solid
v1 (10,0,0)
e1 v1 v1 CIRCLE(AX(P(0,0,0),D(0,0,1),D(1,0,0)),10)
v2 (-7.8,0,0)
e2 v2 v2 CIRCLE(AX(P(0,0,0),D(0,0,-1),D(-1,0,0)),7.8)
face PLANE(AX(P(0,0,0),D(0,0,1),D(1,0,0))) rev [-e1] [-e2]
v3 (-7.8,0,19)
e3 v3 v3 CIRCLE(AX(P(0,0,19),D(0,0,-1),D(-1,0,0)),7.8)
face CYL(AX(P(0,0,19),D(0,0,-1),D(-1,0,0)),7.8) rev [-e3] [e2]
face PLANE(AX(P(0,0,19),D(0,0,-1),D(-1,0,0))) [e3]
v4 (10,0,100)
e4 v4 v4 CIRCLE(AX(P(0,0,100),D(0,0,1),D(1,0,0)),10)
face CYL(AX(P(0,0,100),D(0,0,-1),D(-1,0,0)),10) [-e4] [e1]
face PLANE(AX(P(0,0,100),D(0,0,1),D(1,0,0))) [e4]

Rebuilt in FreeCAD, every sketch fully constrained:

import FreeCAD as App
import Part
import Sketcher
Q = App.Units.Quantity

doc = App.newDocument("Part")
body = doc.addObject("PartDesign::Body", "Body")

sketch1 = doc.addObject("Sketcher::SketchObject", "Sketch")
body.addObject(sketch1)
sketch1.AttachmentSupport = (doc.XY_Plane, [""])
sketch1.MapMode = "FlatFace"
sketch1.addGeometry(Part.Circle(App.Vector(0, 0, 0), App.Vector(0, 0, 1), 10), False)
sketch1.addConstraint([
    Sketcher.Constraint("Coincident", 0, 3, -1, 1),
    Sketcher.Constraint("Diameter", 0, Q("20 mm")),
])
pad1 = doc.addObject("PartDesign::Pad", "Pad")
body.addObject(pad1)
pad1.Profile = sketch1
pad1.Length = 100

sketch2 = doc.addObject("Sketcher::SketchObject", "Sketch001")
body.addObject(sketch2)
sketch2.AttachmentSupport = (doc.XY_Plane, [""])
sketch2.MapMode = "FlatFace"
sketch2.addGeometry(Part.Circle(App.Vector(0, 0, 0), App.Vector(0, 0, 1), 7.8), False)
sketch2.addConstraint([
    Sketcher.Constraint("Coincident", 0, 3, -1, 1),
    Sketcher.Constraint("Diameter", 0, Q("15.6 mm")),
])
pocket1 = doc.addObject("PartDesign::Pocket", "Pocket")
body.addObject(pocket1)
pocket1.Profile = sketch2
pocket1.Length = 19
pocket1.Reversed = True

doc.recompute()
